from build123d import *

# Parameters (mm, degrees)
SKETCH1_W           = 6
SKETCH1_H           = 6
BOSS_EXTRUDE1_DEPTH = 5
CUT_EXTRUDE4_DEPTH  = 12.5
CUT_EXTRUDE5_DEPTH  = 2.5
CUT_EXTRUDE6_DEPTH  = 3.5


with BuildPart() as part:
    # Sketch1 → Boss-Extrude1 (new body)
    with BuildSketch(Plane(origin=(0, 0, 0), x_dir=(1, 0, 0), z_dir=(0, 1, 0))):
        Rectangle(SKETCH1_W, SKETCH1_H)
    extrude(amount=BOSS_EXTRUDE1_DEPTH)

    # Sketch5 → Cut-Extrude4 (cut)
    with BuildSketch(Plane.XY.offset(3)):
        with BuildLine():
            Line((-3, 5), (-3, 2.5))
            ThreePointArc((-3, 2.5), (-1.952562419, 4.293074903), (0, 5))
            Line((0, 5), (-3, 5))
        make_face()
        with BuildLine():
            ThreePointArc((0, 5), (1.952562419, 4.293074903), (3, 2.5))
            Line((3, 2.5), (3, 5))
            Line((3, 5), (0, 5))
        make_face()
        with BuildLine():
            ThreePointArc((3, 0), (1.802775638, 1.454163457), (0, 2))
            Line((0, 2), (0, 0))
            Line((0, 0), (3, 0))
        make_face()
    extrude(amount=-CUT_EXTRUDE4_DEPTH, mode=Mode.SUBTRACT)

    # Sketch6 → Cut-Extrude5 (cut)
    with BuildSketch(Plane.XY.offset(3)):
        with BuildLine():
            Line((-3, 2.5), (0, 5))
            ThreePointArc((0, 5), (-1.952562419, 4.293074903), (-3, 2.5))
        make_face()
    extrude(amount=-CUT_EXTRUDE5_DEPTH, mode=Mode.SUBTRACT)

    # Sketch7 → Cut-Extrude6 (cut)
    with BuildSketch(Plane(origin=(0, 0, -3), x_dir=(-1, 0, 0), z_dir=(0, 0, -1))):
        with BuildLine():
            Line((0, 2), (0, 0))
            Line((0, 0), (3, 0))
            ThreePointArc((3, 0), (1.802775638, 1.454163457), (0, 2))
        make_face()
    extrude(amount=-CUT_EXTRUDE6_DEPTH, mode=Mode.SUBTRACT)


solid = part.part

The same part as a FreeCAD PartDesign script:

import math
import FreeCAD as App
import Part
import Sketcher
from FreeCAD import Vector


def add_polygon(sketch, points):
    """Adds a closed chain of lines whose ends are joined by coincident constraints."""
    first, n = sketch.GeometryCount, len(points)
    for a, b in zip(points, points[1:] + points[:1]):
        sketch.addGeometry(Part.LineSegment(App.Vector(*a, 0), App.Vector(*b, 0)), False)
    for i in range(n):
        sketch.addConstraint(Sketcher.Constraint("Coincident", first + i, 2, first + (i + 1) % n, 1))

doc = App.newDocument("Part")
body = doc.addObject("PartDesign::Body", "Body")

# Sketch on XZ plane
sketch1 = body.newObject("Sketcher::SketchObject", "Sketch")
sketch1.AttachmentSupport = (doc.getObject("XZ_Plane"), [""])
sketch1.MapMode = "FlatFace"
add_polygon(sketch1, [(-3, -3), (-3, 3), (3, 3), (3, -3)])  # lines 0-3
sketch1.addConstraint(Sketcher.Constraint("Vertical", 0))
sketch1.addConstraint(Sketcher.Constraint("Horizontal", 1))
sketch1.addConstraint(Sketcher.Constraint("Vertical", 2))
sketch1.addConstraint(Sketcher.Constraint("Horizontal", 3))
sketch1.addConstraint(Sketcher.Constraint("Symmetric", 0, 2, 2, 2, -1, 1))
sketch1.addConstraint(Sketcher.Constraint("Equal", 3, 0))
sketch1.addConstraint(Sketcher.Constraint("DistanceX", 1, 1, 1, 2, 6.0))
pad1 = body.newObject("PartDesign::Pad", "Pad")
pad1.Profile = sketch1
pad1.Length = 5
pad1.Reversed = True

# Sketch on XY plane
sketch2 = body.newObject("Sketcher::SketchObject", "Sketch001")
sketch2.AttachmentSupport = (doc.getObject("XY_Plane"), [""])
sketch2.MapMode = "FlatFace"
sketch2.AttachmentOffset = App.Placement(Vector(0, 0, 3), App.Rotation())
sketch2.addGeometry(Part.LineSegment(Vector(-3, 5, 0), Vector(-3, 2.5, 0)), False)
sketch2.addGeometry(Part.ArcOfCircle(Part.Circle(Vector(0, 1.95, 0), Vector(0, 0, 1), 3.05), math.radians(90), math.radians(169.611142)), False)
sketch2.addGeometry(Part.LineSegment(Vector(0, 5, 0), Vector(-3, 5, 0)), False)
sketch2.addGeometry(Part.ArcOfCircle(Part.Circle(Vector(0, 1.95, 0), Vector(0, 0, 1), 3.05), math.radians(10.388858), math.radians(90)), False)
sketch2.addGeometry(Part.LineSegment(Vector(3, 2.5, 0), Vector(3, 5, 0)), False)
sketch2.addGeometry(Part.LineSegment(Vector(3, 5, 0), Vector(0, 5, 0)), False)
sketch2.addGeometry(Part.ArcOfCircle(Part.Circle(Vector(0, -1.25, 0), Vector(0, 0, 1), 3.25), math.radians(22.619865), math.radians(90)), False)
sketch2.addGeometry(Part.LineSegment(Vector(0, 2, 0), Vector(0, 0, 0)), False)
sketch2.addGeometry(Part.LineSegment(Vector(0, 0, 0), Vector(3, 0, 0)), False)
sketch2.addConstraint(Sketcher.Constraint("Coincident", 0, 2, 1, 2))
sketch2.addConstraint(Sketcher.Constraint("Tangent", 1, 1, 2, 1))
sketch2.addConstraint(Sketcher.Constraint("Coincident", 2, 2, 0, 1))
sketch2.addConstraint(Sketcher.Constraint("Coincident", 3, 1, 4, 1))
sketch2.addConstraint(Sketcher.Constraint("Coincident", 4, 2, 5, 1))
sketch2.addConstraint(Sketcher.Constraint("Tangent", 5, 2, 3, 2))
sketch2.addConstraint(Sketcher.Constraint("Coincident", 6, 2, 7, 1))
sketch2.addConstraint(Sketcher.Constraint("Coincident", 7, 2, 8, 1))
sketch2.addConstraint(Sketcher.Constraint("Coincident", 8, 2, 6, 1))
sketch2.addConstraint(Sketcher.Constraint("Vertical", 0))
sketch2.addConstraint(Sketcher.Constraint("Horizontal", 2))
sketch2.addConstraint(Sketcher.Constraint("Vertical", 4))
sketch2.addConstraint(Sketcher.Constraint("Horizontal", 5))
sketch2.addConstraint(Sketcher.Constraint("Vertical", 7))
sketch2.addConstraint(Sketcher.Constraint("Horizontal", 8))
sketch2.addConstraint(Sketcher.Constraint("Coincident", 7, 2, -1, 1))
sketch2.addConstraint(Sketcher.Constraint("Coincident", 3, 3, 1, 3))
sketch2.addConstraint(Sketcher.Constraint("Equal", 1, 3))
sketch2.addConstraint(Sketcher.Constraint("Symmetric", 0, 2, 3, 1, -2))
sketch2.addConstraint(Sketcher.Constraint("PointOnObject", 6, 3, -2))
sketch2.addConstraint(Sketcher.Constraint("Vertical", 4, 2, 8, 2))
sketch2.addConstraint(Sketcher.Constraint("DistanceX", 2, 2, 2, 1, 3.0))
sketch2.addConstraint(Sketcher.Constraint("DistanceY", 7, 2, 7, 1, 2.0))
sketch2.addConstraint(Sketcher.Constraint("Radius", 1, 3.05))
sketch2.addConstraint(Sketcher.Constraint("DistanceY", -1, 1, 1, 1, 5.0))
pocket1 = body.newObject("PartDesign::Pocket", "Pocket")
pocket1.Profile = sketch2
pocket1.Length = 12.5

# Sketch on XY plane
sketch3 = body.newObject("Sketcher::SketchObject", "Sketch002")
sketch3.AttachmentSupport = (doc.getObject("XY_Plane"), [""])
sketch3.MapMode = "FlatFace"
sketch3.AttachmentOffset = App.Placement(Vector(0, 0, 3), App.Rotation())
sketch3.addGeometry(Part.LineSegment(Vector(-3, 2.5, 0), Vector(0, 5, 0)), False)
sketch3.addGeometry(Part.ArcOfCircle(Part.Circle(Vector(0, 1.95, 0), Vector(0, 0, 1), 3.05), math.radians(90), math.radians(169.611142)), False)
sketch3.addConstraint(Sketcher.Constraint("Coincident", 0, 1, 1, 2))
sketch3.addConstraint(Sketcher.Constraint("Coincident", 1, 1, 0, 2))
sketch3.addConstraint(Sketcher.Constraint("PointOnObject", 1, 3, -2))
sketch3.addConstraint(Sketcher.Constraint("PointOnObject", 1, 1, -2))
sketch3.addConstraint(Sketcher.Constraint("Radius", 1, 3.05))
sketch3.addConstraint(Sketcher.Constraint("DistanceX", 0, 1, -1, 1, 3.0))
sketch3.addConstraint(Sketcher.Constraint("DistanceY", -1, 1, 1, 1, 5.0))
pocket2 = body.newObject("PartDesign::Pocket", "Pocket001")
pocket2.Profile = sketch3
pocket2.Length = 2.5

# Sketch on XY plane
sketch4 = body.newObject("Sketcher::SketchObject", "Sketch003")
sketch4.AttachmentSupport = (doc.getObject("XY_Plane"), [""])
sketch4.MapMode = "FlatFace"
sketch4.AttachmentOffset = App.Placement(Vector(0, 0, -3), App.Rotation())
sketch4.addGeometry(Part.LineSegment(Vector(0, 2, 0), Vector(0, 0, 0)), False)
sketch4.addGeometry(Part.LineSegment(Vector(0, 0, 0), Vector(-3, 0, 0)), False)
sketch4.addGeometry(Part.ArcOfCircle(Part.Circle(Vector(0, -1.25, 0), Vector(0, 0, 1), 3.25), math.radians(90), math.radians(157.380135)), False)
sketch4.addConstraint(Sketcher.Constraint("Coincident", 0, 2, 1, 1))
sketch4.addConstraint(Sketcher.Constraint("Coincident", 1, 2, 2, 2))
sketch4.addConstraint(Sketcher.Constraint("Coincident", 2, 1, 0, 1))
sketch4.addConstraint(Sketcher.Constraint("Vertical", 0))
sketch4.addConstraint(Sketcher.Constraint("Horizontal", 1))
sketch4.addConstraint(Sketcher.Constraint("Coincident", 0, 2, -1, 1))
sketch4.addConstraint(Sketcher.Constraint("PointOnObject", 2, 3, -2))
sketch4.addConstraint(Sketcher.Constraint("DistanceX", 1, 2, 1, 1, 3.0))
sketch4.addConstraint(Sketcher.Constraint("DistanceY", 0, 2, 0, 1, 2.0))
pocket3 = body.newObject("PartDesign::Pocket", "Pocket002")
pocket3.Profile = sketch4
pocket3.Length = 3.5
pocket3.Reversed = True

doc.recompute()
